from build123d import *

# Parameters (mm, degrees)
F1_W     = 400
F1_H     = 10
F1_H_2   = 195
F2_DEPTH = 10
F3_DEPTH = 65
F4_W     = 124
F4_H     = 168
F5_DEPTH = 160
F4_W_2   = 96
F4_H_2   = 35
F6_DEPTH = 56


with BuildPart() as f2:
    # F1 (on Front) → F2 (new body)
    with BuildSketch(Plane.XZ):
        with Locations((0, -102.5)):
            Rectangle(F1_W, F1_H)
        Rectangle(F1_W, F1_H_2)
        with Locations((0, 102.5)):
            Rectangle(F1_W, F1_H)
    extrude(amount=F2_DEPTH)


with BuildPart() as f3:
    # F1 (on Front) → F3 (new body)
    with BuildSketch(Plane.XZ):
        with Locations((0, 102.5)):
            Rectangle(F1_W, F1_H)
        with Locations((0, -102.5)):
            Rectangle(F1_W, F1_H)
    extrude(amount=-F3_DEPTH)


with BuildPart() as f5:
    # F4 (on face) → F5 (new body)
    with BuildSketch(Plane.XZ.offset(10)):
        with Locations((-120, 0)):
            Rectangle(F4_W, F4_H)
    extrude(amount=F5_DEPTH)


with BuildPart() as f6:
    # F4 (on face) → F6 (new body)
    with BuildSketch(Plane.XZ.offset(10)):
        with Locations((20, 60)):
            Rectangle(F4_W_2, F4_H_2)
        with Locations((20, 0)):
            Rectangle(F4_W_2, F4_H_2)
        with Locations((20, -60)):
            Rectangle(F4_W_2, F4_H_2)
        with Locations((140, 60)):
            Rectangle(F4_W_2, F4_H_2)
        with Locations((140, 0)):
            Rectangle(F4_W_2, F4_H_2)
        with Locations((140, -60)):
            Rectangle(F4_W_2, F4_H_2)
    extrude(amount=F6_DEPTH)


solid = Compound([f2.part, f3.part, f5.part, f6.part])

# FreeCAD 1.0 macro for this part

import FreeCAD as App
import Part
import Sketcher
from FreeCAD import Vector

doc = App.newDocument("Part")
params = doc.addObject("Spreadsheet::Sheet", "Params")
for row, (alias, value) in enumerate([
    ("sketch1_width", "400 mm"),
    ("sketch1_height", "215 mm"),
    ("pad1_length", "10 mm"),
    ("sketch2_width", "400 mm"),
    ("sketch2_height", "10 mm"),
    ("pad2_length", "65 mm"),
    ("sketch3_width", "124 mm"),
    ("sketch3_height", "168 mm"),
    ("pad3_length", "160 mm"),
    ("sketch4_width", "96 mm"),
    ("sketch4_height", "35 mm"),
    ("pad4_length", "56 mm"),
], start=1):
    params.set(f"A{row}", alias)
    params.set(f"B{row}", "=" + value)
    params.setAlias(f"B{row}", alias)

body = doc.addObject("PartDesign::Body", "Body")

sketch1 = doc.addObject("Sketcher::SketchObject", "Sketch")
body.addObject(sketch1)
sketch1.AttachmentSupport = (doc.XZ_Plane, [""])
sketch1.MapMode = "FlatFace"
sketch1.addGeometry(Part.LineSegment(Vector(-200, -108, 0), Vector(200, -108, 0)), False)
sketch1.addGeometry(Part.LineSegment(Vector(200, -108, 0), Vector(200, 108, 0)), False)
sketch1.addGeometry(Part.LineSegment(Vector(200, 108, 0), Vector(-200, 108, 0)), False)
sketch1.addGeometry(Part.LineSegment(Vector(-200, 108, 0), Vector(-200, -108, 0)), False)
sketch1.addConstraint(Sketcher.Constraint("Coincident", 0, 2, 1, 1))
sketch1.addConstraint(Sketcher.Constraint("Coincident", 1, 2, 2, 1))
sketch1.addConstraint(Sketcher.Constraint("Coincident", 2, 2, 3, 1))
sketch1.addConstraint(Sketcher.Constraint("Coincident", 3, 2, 0, 1))
sketch1.addConstraint(Sketcher.Constraint("Horizontal", 0))
sketch1.addConstraint(Sketcher.Constraint("Vertical", 1))
sketch1.addConstraint(Sketcher.Constraint("Horizontal", 2))
sketch1.addConstraint(Sketcher.Constraint("Vertical", 3))
sketch1.addConstraint(Sketcher.Constraint("Symmetric", 0, 2, 2, 2, -1, 1))
sketch1.addConstraint(Sketcher.Constraint("DistanceX", 0, 1, 0, 2, 400.0))
sketch1.addConstraint(Sketcher.Constraint("DistanceY", 1, 1, 1, 2, 215.0))
sketch1.setExpression("Constraints[9]", "Params.sketch1_width")
sketch1.setExpression("Constraints[10]", "Params.sketch1_height")
pad1 = doc.addObject("PartDesign::Pad", "Pad")
body.addObject(pad1)
pad1.Profile = sketch1
pad1.setExpression("Length", "Params.pad1_length")
body2 = doc.addObject("PartDesign::Body", "Body001")
body2.AllowCompound = True

sketch2 = doc.addObject("Sketcher::SketchObject", "Sketch001")
body2.addObject(sketch2)
sketch2.AttachmentSupport = (doc.getObject("XZ_Plane001"), [""])
sketch2.MapMode = "FlatFace"
sketch2.addGeometry(Part.LineSegment(Vector(-200, 108, 0), Vector(-200, 98, 0)), False)
sketch2.addGeometry(Part.LineSegment(Vector(-200, 98, 0), Vector(200, 98, 0)), False)
sketch2.addGeometry(Part.LineSegment(Vector(200, 98, 0), Vector(200, 108, 0)), False)
sketch2.addGeometry(Part.LineSegment(Vector(200, 108, 0), Vector(-200, 108, 0)), False)
sketch2.addGeometry(Part.LineSegment(Vector(-200, -98, 0), Vector(-200, -108, 0)), False)
sketch2.addGeometry(Part.LineSegment(Vector(-200, -108, 0), Vector(200, -108, 0)), False)
sketch2.addGeometry(Part.LineSegment(Vector(200, -108, 0), Vector(200, -98, 0)), False)
sketch2.addGeometry(Part.LineSegment(Vector(200, -98, 0), Vector(-200, -98, 0)), False)
sketch2.addConstraint(Sketcher.Constraint("Coincident", 0, 2, 1, 1))
sketch2.addConstraint(Sketcher.Constraint("Coincident", 1, 2, 2, 1))
sketch2.addConstraint(Sketcher.Constraint("Coincident", 2, 2, 3, 1))
sketch2.addConstraint(Sketcher.Constraint("Coincident", 3, 2, 0, 1))
sketch2.addConstraint(Sketcher.Constraint("Coincident", 4, 2, 5, 1))
sketch2.addConstraint(Sketcher.Constraint("Coincident", 5, 2, 6, 1))
sketch2.addConstraint(Sketcher.Constraint("Coincident", 6, 2, 7, 1))
sketch2.addConstraint(Sketcher.Constraint("Coincident", 7, 2, 4, 1))
sketch2.addConstraint(Sketcher.Constraint("Vertical", 0))
sketch2.addConstraint(Sketcher.Constraint("Horizontal", 1))
sketch2.addConstraint(Sketcher.Constraint("Vertical", 2))
sketch2.addConstraint(Sketcher.Constraint("Horizontal", 3))
sketch2.addConstraint(Sketcher.Constraint("Vertical", 4))
sketch2.addConstraint(Sketcher.Constraint("Horizontal", 5))
sketch2.addConstraint(Sketcher.Constraint("Vertical", 6))
sketch2.addConstraint(Sketcher.Constraint("Horizontal", 7))
sketch2.addConstraint(Sketcher.Constraint("Symmetric", 2, 2, 4, 2, -1, 1))
sketch2.addConstraint(Sketcher.Constraint("Symmetric", 0, 2, 6, 2, -1, 1))
sketch2.addConstraint(Sketcher.Constraint("Vertical", 3, 2, 4, 2))
sketch2.addConstraint(Sketcher.Constraint("DistanceX", 1, 1, 1, 2, 400.0))
sketch2.addConstraint(Sketcher.Constraint("DistanceY", 0, 2, 0, 1, 10.0))
sketch2.addConstraint(Sketcher.Constraint("DistanceY", 4, 2, 0, 2, 205.0))
sketch2.setExpression("Constraints[19]", "Params.sketch2_width")
sketch2.setExpression("Constraints[20]", "Params.sketch2_height")
pad2 = doc.addObject("PartDesign::Pad", "Pad001")
body2.addObject(pad2)
pad2.Profile = sketch2
pad2.setExpression("Length", "Params.pad2_length")
pad2.Reversed = True
body3 = doc.addObject("PartDesign::Body", "Body002")

sketch3 = doc.addObject("Sketcher::SketchObject", "Sketch002")
body3.addObject(sketch3)
sketch3.AttachmentSupport = (doc.getObject("XZ_Plane002"), [""])
sketch3.MapMode = "FlatFace"
sketch3.AttachmentOffset = App.Placement(Vector(0, 0, 10), App.Rotation())
sketch3.addGeometry(Part.LineSegment(Vector(-182, 84, 0), Vector(-182, -84, 0)), False)
sketch3.addGeometry(Part.LineSegment(Vector(-182, -84, 0), Vector(-58, -84, 0)), False)
sketch3.addGeometry(Part.LineSegment(Vector(-58, -84, 0), Vector(-58, 84, 0)), False)
sketch3.addGeometry(Part.LineSegment(Vector(-58, 84, 0), Vector(-182, 84, 0)), False)
sketch3.addConstraint(Sketcher.Constraint("Coincident", 0, 2, 1, 1))
sketch3.addConstraint(Sketcher.Constraint("Coincident", 1, 2, 2, 1))
sketch3.addConstraint(Sketcher.Constraint("Coincident", 2, 2, 3, 1))
sketch3.addConstraint(Sketcher.Constraint("Coincident", 3, 2, 0, 1))
sketch3.addConstraint(Sketcher.Constraint("Vertical", 0))
sketch3.addConstraint(Sketcher.Constraint("Horizontal", 1))
sketch3.addConstraint(Sketcher.Constraint("Vertical", 2))
sketch3.addConstraint(Sketcher.Constraint("Horizontal", 3))
sketch3.addConstraint(Sketcher.Constraint("DistanceX", 1, 1, 1, 2, 124.0))
sketch3.addConstraint(Sketcher.Constraint("DistanceY", 0, 2, 0, 1, 168.0))
sketch3.addConstraint(Sketcher.Constraint("DistanceX", 0, 2, -1, 1, 182.0))
sketch3.addConstraint(Sketcher.Constraint("DistanceY", 0, 2, -1, 1, 84.0))
sketch3.setExpression("Constraints[8]", "Params.sketch3_width")
sketch3.setExpression("Constraints[9]", "Params.sketch3_height")
pad3 = doc.addObject("PartDesign::Pad", "Pad002")
body3.addObject(pad3)
pad3.Profile = sketch3
pad3.setExpression("Length", "Params.pad3_length")
body4 = doc.addObject("PartDesign::Body", "Body003")
body4.AllowCompound = True

sketch4 = doc.addObject("Sketcher::SketchObject", "Sketch003")
body4.addObject(sketch4)
sketch4.AttachmentSupport = (doc.getObject("XZ_Plane003"), [""])
sketch4.MapMode = "FlatFace"
sketch4.AttachmentOffset = App.Placement(Vector(0, 0, 10), App.Rotation())
sketch4.addGeometry(Part.LineSegment(Vector(-28, 78, 0), Vector(-28, 42, 0)), False)
sketch4.addGeometry(Part.LineSegment(Vector(-28, 42, 0), Vector(68, 42, 0)), False)
sketch4.addGeometry(Part.LineSegment(Vector(68, 42, 0), Vector(68, 78, 0)), False)
sketch4.addGeometry(Part.LineSegment(Vector(68, 78, 0), Vector(-28, 78, 0)), False)
sketch4.addGeometry(Part.LineSegment(Vector(-28, 18, 0), Vector(-28, -18, 0)), False)
sketch4.addGeometry(Part.LineSegment(Vector(-28, -18, 0), Vector(68, -18, 0)), False)
sketch4.addGeometry(Part.LineSegment(Vector(68, -18, 0), Vector(68, 18, 0)), False)
sketch4.addGeometry(Part.LineSegment(Vector(68, 18, 0), Vector(-28, 18, 0)), False)
sketch4.addGeometry(Part.LineSegment(Vector(-28, -42, 0), Vector(-28, -78, 0)), False)
sketch4.addGeometry(Part.LineSegment(Vector(-28, -78, 0), Vector(68, -78, 0)), False)
sketch4.addGeometry(Part.LineSegment(Vector(68, -78, 0), Vector(68, -42, 0)), False)
sketch4.addGeometry(Part.LineSegment(Vector(68, -42, 0), Vector(-28, -42, 0)), False)
sketch4.addGeometry(Part.LineSegment(Vector(92, 78, 0), Vector(92, 42, 0)), False)
sketch4.addGeometry(Part.LineSegment(Vector(92, 42, 0), Vector(188, 42, 0)), False)
sketch4.addGeometry(Part.LineSegment(Vector(188, 42, 0), Vector(188, 78, 0)), False)
sketch4.addGeometry(Part.LineSegment(Vector(188, 78, 0), Vector(92, 78, 0)), False)
sketch4.addGeometry(Part.LineSegment(Vector(92, 18, 0), Vector(92, -18, 0)), False)
sketch4.addGeometry(Part.LineSegment(Vector(92, -18, 0), Vector(188, -18, 0)), False)
sketch4.addGeometry(Part.LineSegment(Vector(188, -18, 0), Vector(188, 18, 0)), False)
sketch4.addGeometry(Part.LineSegment(Vector(188, 18, 0), Vector(92, 18, 0)), False)
sketch4.addGeometry(Part.LineSegment(Vector(92, -42, 0), Vector(92, -78, 0)), False)
sketch4.addGeometry(Part.LineSegment(Vector(92, -78, 0), Vector(188, -78, 0)), False)
sketch4.addGeometry(Part.LineSegment(Vector(188, -78, 0), Vector(188, -42, 0)), False)
sketch4.addGeometry(Part.LineSegment(Vector(188, -42, 0), Vector(92, -42, 0)), False)
sketch4.addConstraint(Sketcher.Constraint("Coincident", 0, 2, 1, 1))
sketch4.addConstraint(Sketcher.Constraint("Coincident", 1, 2, 2, 1))
sketch4.addConstraint(Sketcher.Constraint("Coincident", 2, 2, 3, 1))
sketch4.addConstraint(Sketcher.Constraint("Coincident", 3, 2, 0, 1))
sketch4.addConstraint(Sketcher.Constraint("Coincident", 4, 2, 5, 1))
sketch4.addConstraint(Sketcher.Constraint("Coincident", 5, 2, 6, 1))
sketch4.addConstraint(Sketcher.Constraint("Coincident", 6, 2, 7, 1))
sketch4.addConstraint(Sketcher.Constraint("Coincident", 7, 2, 4, 1))
sketch4.addConstraint(Sketcher.Constraint("Coincident", 8, 2, 9, 1))
sketch4.addConstraint(Sketcher.Constraint("Coincident", 9, 2, 10, 1))
sketch4.addConstraint(Sketcher.Constraint("Coincident", 10, 2, 11, 1))
sketch4.addConstraint(Sketcher.Constraint("Coincident", 11, 2, 8, 1))
sketch4.addConstraint(Sketcher.Constraint("Coincident", 12, 2, 13, 1))
sketch4.addConstraint(Sketcher.Constraint("Coincident", 13, 2, 14, 1))
sketch4.addConstraint(Sketcher.Constraint("Coincident", 14, 2, 15, 1))
sketch4.addConstraint(Sketcher.Constraint("Coincident", 15, 2, 12, 1))
sketch4.addConstraint(Sketcher.Constraint("Coincident", 16, 2, 17, 1))
sketch4.addConstraint(Sketcher.Constraint("Coincident", 17, 2, 18, 1))
sketch4.addConstraint(Sketcher.Constraint("Coincident", 18, 2, 19, 1))
sketch4.addConstraint(Sketcher.Constraint("Coincident", 19, 2, 16, 1))
sketch4.addConstraint(Sketcher.Constraint("Coincident", 20, 2, 21, 1))
sketch4.addConstraint(Sketcher.Constraint("Coincident", 21, 2, 22, 1))
sketch4.addConstraint(Sketcher.Constraint("Coincident", 22, 2, 23, 1))
sketch4.addConstraint(Sketcher.Constraint("Coincident", 23, 2, 20, 1))
sketch4.addConstraint(Sketcher.Constraint("Vertical", 0))
sketch4.addConstraint(Sketcher.Constraint("Horizontal", 1))
sketch4.addConstraint(Sketcher.Constraint("Vertical", 2))
sketch4.addConstraint(Sketcher.Constraint("Horizontal", 3))
sketch4.addConstraint(Sketcher.Constraint("Vertical", 4))
sketch4.addConstraint(Sketcher.Constraint("Horizontal", 5))
sketch4.addConstraint(Sketcher.Constraint("Vertical", 6))
sketch4.addConstraint(Sketcher.Constraint("Horizontal", 7))
sketch4.addConstraint(Sketcher.Constraint("Vertical", 8))
sketch4.addConstraint(Sketcher.Constraint("Horizontal", 9))
sketch4.addConstraint(Sketcher.Constraint("Vertical", 10))
sketch4.addConstraint(Sketcher.Constraint("Horizontal", 11))
sketch4.addConstraint(Sketcher.Constraint("Vertical", 12))
sketch4.addConstraint(Sketcher.Constraint("Horizontal", 13))
sketch4.addConstraint(Sketcher.Constraint("Vertical", 14))
sketch4.addConstraint(Sketcher.Constraint("Horizontal", 15))
sketch4.addConstraint(Sketcher.Constraint("Vertical", 16))
sketch4.addConstraint(Sketcher.Constraint("Horizontal", 17))
sketch4.addConstraint(Sketcher.Constraint("Vertical", 18))
sketch4.addConstraint(Sketcher.Constraint("Horizontal", 19))
sketch4.addConstraint(Sketcher.Constraint("Vertical", 20))
sketch4.addConstraint(Sketcher.Constraint("Horizontal", 21))
sketch4.addConstraint(Sketcher.Constraint("Vertical", 22))
sketch4.addConstraint(Sketcher.Constraint("Horizontal", 23))
sketch4.addConstraint(Sketcher.Constraint("Symmetric", 3, 2, 8, 2, -1))
sketch4.addConstraint(Sketcher.Constraint("Symmetric", 1, 2, 10, 2, -1))
sketch4.addConstraint(Sketcher.Constraint("Symmetric", 15, 2, 20, 2, -1))
sketch4.addConstraint(Sketcher.Constraint("Symmetric", 13, 2, 22, 2, -1))
sketch4.addConstraint(Sketcher.Constraint("Horizontal", 1, 2, 12, 2))
sketch4.addConstraint(Sketcher.Constraint("Horizontal", 3, 2, 14, 2))
sketch4.addConstraint(Sketcher.Constraint("Horizontal", 5, 2, 16, 2))
sketch4.addConstraint(Sketcher.Constraint("Horizontal", 7, 2, 18, 2))
sketch4.addConstraint(Sketcher.Constraint("Vertical", 3, 2, 4, 2))
sketch4.addConstraint(Sketcher.Constraint("Vertical", 2, 2, 5, 2))
sketch4.addConstraint(Sketcher.Constraint("Vertical", 15, 2, 16, 2))
sketch4.addConstraint(Sketcher.Constraint("Vertical", 14, 2, 17, 2))
sketch4.addConstraint(Sketcher.Constraint("Equal", 11, 13))
sketch4.addConstraint(Sketcher.Constraint("Equal", 2, 4))
sketch4.addConstraint(Sketcher.Constraint("DistanceX", 1, 1, 1, 2, 96.0))
sketch4.addConstraint(Sketcher.Constraint("DistanceY", 0, 2, 0, 1, 35.0))
sketch4.addConstraint(Sketcher.Constraint("DistanceX", 0, 2, -1, 1, 28.0))
sketch4.addConstraint(Sketcher.Constraint("DistanceX", -1, 1, 12, 2, 92.0))
sketch4.addConstraint(Sketcher.Constraint("DistanceY", 4, 2, 0, 2, 60.0))
sketch4.addConstraint(Sketcher.Constraint("DistanceY", 8, 2, 4, 2, 60.0))
sketch4.setExpression("Constraints[62]", "Params.sketch4_width")
sketch4.setExpression("Constraints[63]", "Params.sketch4_height")
pad4 = doc.addObject("PartDesign::Pad", "Pad003")
body4.addObject(pad4)
pad4.Profile = sketch4
pad4.setExpression("Length", "Params.pad4_length")

doc.recompute()
